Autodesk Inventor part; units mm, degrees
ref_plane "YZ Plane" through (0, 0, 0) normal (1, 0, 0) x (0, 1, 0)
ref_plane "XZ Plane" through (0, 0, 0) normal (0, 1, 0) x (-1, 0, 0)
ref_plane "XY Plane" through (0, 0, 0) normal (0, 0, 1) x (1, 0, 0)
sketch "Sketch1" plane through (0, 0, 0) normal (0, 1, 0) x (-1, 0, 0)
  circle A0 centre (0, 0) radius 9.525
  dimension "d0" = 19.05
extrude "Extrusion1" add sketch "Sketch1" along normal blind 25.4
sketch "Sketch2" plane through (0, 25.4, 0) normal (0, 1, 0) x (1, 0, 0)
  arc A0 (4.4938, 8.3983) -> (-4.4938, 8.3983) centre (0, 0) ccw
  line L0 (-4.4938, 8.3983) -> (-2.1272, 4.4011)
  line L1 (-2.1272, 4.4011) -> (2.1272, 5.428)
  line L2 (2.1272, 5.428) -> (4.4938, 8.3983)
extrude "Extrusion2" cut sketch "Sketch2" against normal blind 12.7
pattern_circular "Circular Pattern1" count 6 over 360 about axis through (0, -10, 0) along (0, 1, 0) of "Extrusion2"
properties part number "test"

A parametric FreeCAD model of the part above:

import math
import FreeCAD as App
import Part
import Sketcher
from FreeCAD import Vector
Q = App.Units.Quantity

doc = App.newDocument("Part")
body = doc.addObject("PartDesign::Body", "Body")

# Sketch on XZ plane
sketch1 = body.newObject("Sketcher::SketchObject", "Sketch")
sketch1.AttachmentSupport = (doc.getObject("XZ_Plane"), [""])
sketch1.MapMode = "FlatFace"
sketch1.addGeometry(Part.Circle(Vector(0, 0, 0), Vector(0, 0, 1), 10), False)
sketch1.addConstraint([
    Sketcher.Constraint("Coincident", 0, 3, -1, 1),
    Sketcher.Constraint("Diameter", 0, Q("0.75 in")),
])
pad1 = body.newObject("PartDesign::Pad", "Pad")
pad1.Profile = sketch1
pad1.Length = Q("1 in")
pad1.Reversed = True

# Sketch on XZ plane
sketch2 = body.newObject("Sketcher::SketchObject", "Sketch001")
sketch2.AttachmentSupport = (doc.getObject("XZ_Plane"), [""])
sketch2.MapMode = "FlatFace"
sketch2.AttachmentOffset = App.Placement(Vector(0, 0, -1 * 25.4), App.Rotation())
sketch2.addGeometry([
    Part.LineSegment(Vector(2.1, -5.4, 0), Vector(4.5, -8.4, 0)),
    Part.ArcOfCircle(Part.Circle(Vector(0, 0, 0), Vector(0, 0, 1), 9.5), math.radians(-118), math.radians(-62)),
    Part.LineSegment(Vector(-4.5, -8.4, 0), Vector(-2.1, -4.4, 0)),
    Part.LineSegment(Vector(-2.1, -4.4, 0), Vector(2.1, -5.4, 0)),
], False)
sketch2.addConstraint([
    Sketcher.Constraint("Coincident", 0, 2, 1, 2),
    Sketcher.Constraint("Coincident", 1, 1, 2, 1),
    Sketcher.Constraint("Coincident", 2, 2, 3, 1),
    Sketcher.Constraint("Coincident", 3, 2, 0, 1),
    Sketcher.Constraint("Coincident", 1, 3, -1, 1),
    Sketcher.Constraint("Horizontal", 0, 2, 1, 1),
    Sketcher.Constraint("Radius", 1, Q("0.375 in")),
    Sketcher.Constraint("Angle", 3, Q("-13.5701 deg")),
    Sketcher.Constraint("Distance", 3, Q("0.1723 in")),
    Sketcher.Constraint("DistanceY", 3, 2, -1, 1, Q("0.2137 in")),
    Sketcher.Constraint("Distance", 0, 3.7978),
    Sketcher.Constraint("Distance", 2, 4.6453),
])
pocket1 = body.newObject("PartDesign::Pocket", "Pocket")
pocket1.Profile = sketch2
pocket1.Length = Q("0.5 in")
pocket1.Reversed = True
doc.recompute()

polarpattern = body.newObject("PartDesign::PolarPattern", "PolarPattern")
polarpattern.Originals = [pocket1]
polarpattern.Axis = (doc.getObject("Y_Axis"), [""])
polarpattern.Angle = 360
polarpattern.Occurrences = 6
body.Tip = polarpattern

doc.recompute()
